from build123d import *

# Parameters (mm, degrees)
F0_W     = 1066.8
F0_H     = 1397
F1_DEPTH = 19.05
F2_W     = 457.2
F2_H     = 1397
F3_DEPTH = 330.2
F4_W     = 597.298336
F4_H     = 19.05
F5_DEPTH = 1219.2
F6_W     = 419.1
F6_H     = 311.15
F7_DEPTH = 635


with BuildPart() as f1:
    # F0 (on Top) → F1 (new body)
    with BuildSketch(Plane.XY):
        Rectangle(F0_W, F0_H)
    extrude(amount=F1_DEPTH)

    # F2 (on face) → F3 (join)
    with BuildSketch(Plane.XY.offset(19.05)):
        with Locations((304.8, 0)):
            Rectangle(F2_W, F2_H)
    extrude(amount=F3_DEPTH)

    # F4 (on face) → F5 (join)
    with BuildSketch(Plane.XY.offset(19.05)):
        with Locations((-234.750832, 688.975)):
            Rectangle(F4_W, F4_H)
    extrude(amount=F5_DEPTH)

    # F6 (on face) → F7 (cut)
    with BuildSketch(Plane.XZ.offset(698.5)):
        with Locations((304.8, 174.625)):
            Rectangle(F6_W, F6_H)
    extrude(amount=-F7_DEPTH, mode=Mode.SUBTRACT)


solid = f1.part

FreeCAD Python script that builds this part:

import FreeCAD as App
import Part
import Sketcher
from FreeCAD import Vector
Q = App.Units.Quantity

doc = App.newDocument("Part")
body = doc.addObject("PartDesign::Body", "Body")

# Sketch on XY plane
sketch1 = body.newObject("Sketcher::SketchObject", "Sketch")
sketch1.AttachmentSupport = (doc.getObject("XY_Plane"), [""])
sketch1.MapMode = "FlatFace"
sketch1.addGeometry([
    Part.LineSegment(Vector(-533.4, 698.5, 0), Vector(-533.4, -698.5, 0)),
    Part.LineSegment(Vector(-533.4, -698.5, 0), Vector(533.4, -698.5, 0)),
    Part.LineSegment(Vector(533.4, -698.5, 0), Vector(533.4, 698.5, 0)),
    Part.LineSegment(Vector(533.4, 698.5, 0), Vector(-533.4, 698.5, 0)),
], False)
sketch1.addConstraint([
    Sketcher.Constraint("Coincident", 0, 2, 1, 1),
    Sketcher.Constraint("Coincident", 1, 2, 2, 1),
    Sketcher.Constraint("Coincident", 2, 2, 3, 1),
    Sketcher.Constraint("Coincident", 3, 2, 0, 1),
    Sketcher.Constraint("Vertical", 0),
    Sketcher.Constraint("Horizontal", 1),
    Sketcher.Constraint("Vertical", 2),
    Sketcher.Constraint("Horizontal", 3),
    Sketcher.Constraint("Symmetric", 0, 2, 2, 2, -1, 1),
    Sketcher.Constraint("DistanceX", 1, 1, 1, 2, Q("42 in")),
    Sketcher.Constraint("DistanceY", 0, 2, 0, 1, Q("55 in")),
])
pad1 = body.newObject("PartDesign::Pad", "Pad")
pad1.Profile = sketch1
pad1.Length = Q("0.75 in")

# Sketch on XY plane
sketch2 = body.newObject("Sketcher::SketchObject", "Sketch001")
sketch2.AttachmentSupport = (doc.getObject("XY_Plane"), [""])
sketch2.MapMode = "FlatFace"
sketch2.AttachmentOffset = App.Placement(Vector(0, 0, 0.75 * 25.4), App.Rotation())
sketch2.addGeometry([
    Part.LineSegment(Vector(76.2, 698.5, 0), Vector(76.2, -698.5, 0)),
    Part.LineSegment(Vector(76.2, -698.5, 0), Vector(533.4, -698.5, 0)),
    Part.LineSegment(Vector(533.4, -698.5, 0), Vector(533.4, 698.5, 0)),
    Part.LineSegment(Vector(533.4, 698.5, 0), Vector(76.2, 698.5, 0)),
], False)
sketch2.addConstraint([
    Sketcher.Constraint("Coincident", 0, 2, 1, 1),
    Sketcher.Constraint("Coincident", 1, 2, 2, 1),
    Sketcher.Constraint("Coincident", 2, 2, 3, 1),
    Sketcher.Constraint("Coincident", 3, 2, 0, 1),
    Sketcher.Constraint("Vertical", 0),
    Sketcher.Constraint("Horizontal", 1),
    Sketcher.Constraint("Vertical", 2),
    Sketcher.Constraint("Horizontal", 3),
    Sketcher.Constraint("DistanceX", 1, 1, 1, 2, Q("18 in")),
    Sketcher.Constraint("DistanceY", 0, 2, 0, 1, Q("55 in")),
    Sketcher.Constraint("DistanceX", -1, 1, 0, 2, Q("3 in")),
    Sketcher.Constraint("DistanceY", 0, 2, -1, 1, Q("27.5 in")),
])
pad2 = body.newObject("PartDesign::Pad", "Pad001")
pad2.Profile = sketch2
pad2.Length = Q("13 in")

# Sketch on XY plane
sketch3 = body.newObject("Sketcher::SketchObject", "Sketch002")
sketch3.AttachmentSupport = (doc.getObject("XY_Plane"), [""])
sketch3.MapMode = "FlatFace"
sketch3.AttachmentOffset = App.Placement(Vector(0, 0, 0.75 * 25.4), App.Rotation())
sketch3.addGeometry([
    Part.LineSegment(Vector(-533.4, 698.5, 0), Vector(-533.4, 679.45, 0)),
    Part.LineSegment(Vector(-533.4, 679.45, 0), Vector(63.898336, 679.45, 0)),
    Part.LineSegment(Vector(63.898336, 679.45, 0), Vector(63.898336, 698.5, 0)),
    Part.LineSegment(Vector(63.898336, 698.5, 0), Vector(-533.4, 698.5, 0)),
], False)
sketch3.addConstraint([
    Sketcher.Constraint("Coincident", 0, 2, 1, 1),
    Sketcher.Constraint("Coincident", 1, 2, 2, 1),
    Sketcher.Constraint("Coincident", 2, 2, 3, 1),
    Sketcher.Constraint("Coincident", 3, 2, 0, 1),
    Sketcher.Constraint("Vertical", 0),
    Sketcher.Constraint("Horizontal", 1),
    Sketcher.Constraint("Vertical", 2),
    Sketcher.Constraint("Horizontal", 3),
    Sketcher.Constraint("DistanceX", 0, 2, -1, 1, Q("21 in")),
    Sketcher.Constraint("DistanceY", 0, 2, 0, 1, Q("0.75 in")),
    Sketcher.Constraint("DistanceY", -1, 1, 2, 2, Q("27.5 in")),
    Sketcher.Constraint("DistanceX", 1, 1, 1, 2, Q("597.298336 mm")),
])
pad3 = body.newObject("PartDesign::Pad", "Pad002")
pad3.Profile = sketch3
pad3.Length = Q("48 in")

# Sketch on XZ plane
sketch4 = body.newObject("Sketcher::SketchObject", "Sketch003")
sketch4.AttachmentSupport = (doc.getObject("XZ_Plane"), [""])
sketch4.MapMode = "FlatFace"
sketch4.AttachmentOffset = App.Placement(Vector(0, 0, 27.5 * 25.4), App.Rotation())
sketch4.addGeometry([
    Part.LineSegment(Vector(95.25, 330.2, 0), Vector(95.25, 19.05, 0)),
    Part.LineSegment(Vector(95.25, 19.05, 0), Vector(514.35, 19.05, 0)),
    Part.LineSegment(Vector(514.35, 19.05, 0), Vector(514.35, 330.2, 0)),
    Part.LineSegment(Vector(514.35, 330.2, 0), Vector(95.25, 330.2, 0)),
], False)
sketch4.addConstraint([
    Sketcher.Constraint("Coincident", 0, 2, 1, 1),
    Sketcher.Constraint("Coincident", 1, 2, 2, 1),
    Sketcher.Constraint("Coincident", 2, 2, 3, 1),
    Sketcher.Constraint("Coincident", 3, 2, 0, 1),
    Sketcher.Constraint("Vertical", 0),
    Sketcher.Constraint("Horizontal", 1),
    Sketcher.Constraint("Vertical", 2),
    Sketcher.Constraint("Horizontal", 3),
    Sketcher.Constraint("DistanceX", 1, 1, 1, 2, Q("16.5 in")),
    Sketcher.Constraint("DistanceY", -1, 1, 2, 2, Q("13 in")),
    Sketcher.Constraint("DistanceY", 0, 2, 0, 1, Q("12.25 in")),
    Sketcher.Constraint("DistanceX", -1, 1, 0, 2, Q("3.75 in")),
])
pocket1 = body.newObject("PartDesign::Pocket", "Pocket")
pocket1.Profile = sketch4
pocket1.Length = Q("25 in")

doc.recompute()
